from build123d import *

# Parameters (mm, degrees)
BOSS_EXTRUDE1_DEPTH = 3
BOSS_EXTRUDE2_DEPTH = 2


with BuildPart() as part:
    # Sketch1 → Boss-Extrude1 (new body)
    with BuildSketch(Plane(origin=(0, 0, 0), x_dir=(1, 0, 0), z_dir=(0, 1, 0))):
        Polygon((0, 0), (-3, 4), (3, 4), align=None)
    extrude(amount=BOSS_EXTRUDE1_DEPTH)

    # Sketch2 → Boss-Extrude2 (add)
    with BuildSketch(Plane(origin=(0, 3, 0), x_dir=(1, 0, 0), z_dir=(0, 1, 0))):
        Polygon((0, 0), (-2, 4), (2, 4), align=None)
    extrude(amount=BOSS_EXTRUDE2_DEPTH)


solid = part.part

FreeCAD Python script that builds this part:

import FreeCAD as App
import Part
import Sketcher
from FreeCAD import Vector


def add_polygon(sketch, points):
    """Adds a closed chain of lines whose ends are joined by coincident constraints."""
    first, n = sketch.GeometryCount, len(points)
    for a, b in zip(points, points[1:] + points[:1]):
        sketch.addGeometry(Part.LineSegment(App.Vector(*a, 0), App.Vector(*b, 0)), False)
    for i in range(n):
        sketch.addConstraint(Sketcher.Constraint("Coincident", first + i, 2, first + (i + 1) % n, 1))

doc = App.newDocument("Part")
body = doc.addObject("PartDesign::Body", "Body")

# Sketch on XZ plane
sketch1 = body.newObject("Sketcher::SketchObject", "Sketch")
sketch1.AttachmentSupport = (doc.getObject("XZ_Plane"), [""])
sketch1.MapMode = "FlatFace"
add_polygon(sketch1, [(-3, -4), (0, 0), (3, -4)])  # lines 0-2
sketch1.addConstraint(Sketcher.Constraint("Horizontal", 2))
sketch1.addConstraint(Sketcher.Constraint("Coincident", 0, 2, -1, 1))
sketch1.addConstraint(Sketcher.Constraint("Equal", 0, 1))
sketch1.addConstraint(Sketcher.Constraint("DistanceX", 2, 2, 2, 1, 6.0))
sketch1.addConstraint(Sketcher.Constraint("Distance", 0, 5.0))
pad1 = body.newObject("PartDesign::Pad", "Pad")
pad1.Profile = sketch1
pad1.Length = 3
pad1.Reversed = True

# Sketch on XZ plane
sketch2 = body.newObject("Sketcher::SketchObject", "Sketch001")
sketch2.AttachmentSupport = (doc.getObject("XZ_Plane"), [""])
sketch2.MapMode = "FlatFace"
sketch2.AttachmentOffset = App.Placement(Vector(0, 0, -3), App.Rotation())
add_polygon(sketch2, [(-2, -4), (0, 0), (2, -4)])  # lines 0-2
sketch2.addConstraint(Sketcher.Constraint("Horizontal", 2))
sketch2.addConstraint(Sketcher.Constraint("Coincident", 0, 2, -1, 1))
sketch2.addConstraint(Sketcher.Constraint("Equal", 0, 1))
sketch2.addConstraint(Sketcher.Constraint("DistanceX", 2, 2, 2, 1, 4.0))
sketch2.addConstraint(Sketcher.Constraint("DistanceY", 1, 2, -1, 1, 4.0))
pad2 = body.newObject("PartDesign::Pad", "Pad001")
pad2.Profile = sketch2
pad2.Length = 2
pad2.Reversed = True

doc.recompute()
